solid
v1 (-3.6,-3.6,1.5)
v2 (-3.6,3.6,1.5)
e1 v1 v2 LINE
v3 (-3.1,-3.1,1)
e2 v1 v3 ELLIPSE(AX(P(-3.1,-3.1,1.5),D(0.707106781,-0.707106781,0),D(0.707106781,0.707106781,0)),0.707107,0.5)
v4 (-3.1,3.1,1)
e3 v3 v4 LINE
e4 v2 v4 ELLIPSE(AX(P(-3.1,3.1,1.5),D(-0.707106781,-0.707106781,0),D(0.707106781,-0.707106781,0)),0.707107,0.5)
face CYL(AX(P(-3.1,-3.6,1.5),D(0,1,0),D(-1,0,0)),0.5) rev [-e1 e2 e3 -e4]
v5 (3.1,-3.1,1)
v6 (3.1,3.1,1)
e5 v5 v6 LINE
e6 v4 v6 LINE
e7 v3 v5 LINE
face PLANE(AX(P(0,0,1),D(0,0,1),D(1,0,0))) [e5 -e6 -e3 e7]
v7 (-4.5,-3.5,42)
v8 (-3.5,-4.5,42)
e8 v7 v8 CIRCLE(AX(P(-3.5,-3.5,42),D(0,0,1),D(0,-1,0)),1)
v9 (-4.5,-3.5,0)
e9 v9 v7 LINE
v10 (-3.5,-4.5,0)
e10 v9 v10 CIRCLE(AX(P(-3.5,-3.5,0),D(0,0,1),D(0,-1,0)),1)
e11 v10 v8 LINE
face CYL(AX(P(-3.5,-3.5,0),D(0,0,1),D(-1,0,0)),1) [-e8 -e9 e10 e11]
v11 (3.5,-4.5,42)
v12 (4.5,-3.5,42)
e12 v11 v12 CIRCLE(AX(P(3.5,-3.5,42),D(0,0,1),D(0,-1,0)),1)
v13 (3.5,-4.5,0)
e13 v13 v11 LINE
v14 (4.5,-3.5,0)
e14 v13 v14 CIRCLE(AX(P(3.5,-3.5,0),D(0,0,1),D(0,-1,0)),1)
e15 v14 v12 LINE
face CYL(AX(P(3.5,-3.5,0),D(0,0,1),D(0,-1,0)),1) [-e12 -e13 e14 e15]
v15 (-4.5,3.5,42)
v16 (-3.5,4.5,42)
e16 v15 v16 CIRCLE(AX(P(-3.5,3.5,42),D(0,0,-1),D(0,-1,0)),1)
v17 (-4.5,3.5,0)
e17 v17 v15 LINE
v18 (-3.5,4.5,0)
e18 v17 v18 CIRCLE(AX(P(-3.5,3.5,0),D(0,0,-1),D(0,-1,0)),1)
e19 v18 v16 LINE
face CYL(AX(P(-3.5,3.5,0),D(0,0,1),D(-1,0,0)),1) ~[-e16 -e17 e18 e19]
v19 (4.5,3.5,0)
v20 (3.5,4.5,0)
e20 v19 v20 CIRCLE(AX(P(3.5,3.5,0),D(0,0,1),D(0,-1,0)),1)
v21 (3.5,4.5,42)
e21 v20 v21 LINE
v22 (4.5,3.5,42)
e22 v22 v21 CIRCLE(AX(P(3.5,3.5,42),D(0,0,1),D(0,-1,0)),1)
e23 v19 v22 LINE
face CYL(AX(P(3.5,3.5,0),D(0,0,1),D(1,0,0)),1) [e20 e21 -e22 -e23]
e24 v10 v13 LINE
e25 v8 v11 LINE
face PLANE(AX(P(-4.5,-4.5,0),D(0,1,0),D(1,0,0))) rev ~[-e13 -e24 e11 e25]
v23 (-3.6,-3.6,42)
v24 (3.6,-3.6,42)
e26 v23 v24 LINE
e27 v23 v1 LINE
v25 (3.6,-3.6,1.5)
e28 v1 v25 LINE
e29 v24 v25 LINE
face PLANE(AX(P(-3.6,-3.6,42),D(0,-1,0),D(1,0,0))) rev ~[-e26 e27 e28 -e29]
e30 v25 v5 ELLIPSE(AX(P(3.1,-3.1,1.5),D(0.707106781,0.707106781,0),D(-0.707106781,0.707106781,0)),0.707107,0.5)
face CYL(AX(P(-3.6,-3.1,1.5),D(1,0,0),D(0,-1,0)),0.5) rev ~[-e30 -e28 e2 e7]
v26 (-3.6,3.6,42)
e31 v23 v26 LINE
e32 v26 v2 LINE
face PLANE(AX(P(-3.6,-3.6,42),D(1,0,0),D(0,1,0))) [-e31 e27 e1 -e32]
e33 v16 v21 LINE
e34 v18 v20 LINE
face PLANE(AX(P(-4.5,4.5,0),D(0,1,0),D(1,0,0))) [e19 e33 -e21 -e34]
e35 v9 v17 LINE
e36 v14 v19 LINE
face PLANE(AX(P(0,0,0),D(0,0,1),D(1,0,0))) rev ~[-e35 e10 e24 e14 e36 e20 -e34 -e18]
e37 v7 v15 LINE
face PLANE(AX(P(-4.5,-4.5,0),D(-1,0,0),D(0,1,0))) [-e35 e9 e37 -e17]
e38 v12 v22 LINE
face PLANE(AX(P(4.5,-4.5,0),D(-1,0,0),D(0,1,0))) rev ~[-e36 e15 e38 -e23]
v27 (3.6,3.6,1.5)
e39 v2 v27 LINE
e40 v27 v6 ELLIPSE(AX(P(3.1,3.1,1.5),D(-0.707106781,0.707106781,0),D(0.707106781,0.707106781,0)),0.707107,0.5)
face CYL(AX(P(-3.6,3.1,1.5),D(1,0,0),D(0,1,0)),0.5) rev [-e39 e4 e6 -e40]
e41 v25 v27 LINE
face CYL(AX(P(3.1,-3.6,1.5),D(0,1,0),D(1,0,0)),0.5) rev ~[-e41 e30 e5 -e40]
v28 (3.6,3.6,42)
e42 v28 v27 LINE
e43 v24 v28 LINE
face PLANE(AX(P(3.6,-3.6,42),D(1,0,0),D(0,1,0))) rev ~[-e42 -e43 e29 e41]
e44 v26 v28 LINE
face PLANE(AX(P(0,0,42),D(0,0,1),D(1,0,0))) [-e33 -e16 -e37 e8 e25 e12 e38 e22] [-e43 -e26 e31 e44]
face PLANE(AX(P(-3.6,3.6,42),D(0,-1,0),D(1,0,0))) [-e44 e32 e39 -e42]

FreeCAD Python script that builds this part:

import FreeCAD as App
import Part
import Sketcher

V = App.Vector


def edges_at(feature, points):
    """Names of the edges that pass closest to the given points."""
    edges = feature.Shape.Edges
    near = lambda p: min(range(len(edges)), key=lambda i: edges[i].distToShape(Part.Vertex(*p))[0])
    return sorted({f"Edge{near(p) + 1}" for p in points})

doc = App.newDocument("Part")
body = doc.addObject("PartDesign::Body", "Body")

sketch1 = doc.addObject("Sketcher::SketchObject", "Sketch")
body.addObject(sketch1)
sketch1.AttachmentSupport = (doc.XY_Plane, [""])
sketch1.MapMode = "FlatFace"
sketch1.addGeometry([
    Part.LineSegment(V(-4, 4, 0), V(-4, -4, 0)),
    Part.LineSegment(V(-4, -4, 0), V(4, -4, 0)),
    Part.LineSegment(V(4, -4, 0), V(4, 4, 0)),
    Part.LineSegment(V(4, 4, 0), V(-4, 4, 0)),
], False)
sketch1.addConstraint([
    Sketcher.Constraint("Coincident", 0, 2, 1, 1),
    Sketcher.Constraint("Coincident", 1, 2, 2, 1),
    Sketcher.Constraint("Coincident", 2, 2, 3, 1),
    Sketcher.Constraint("Coincident", 3, 2, 0, 1),
    Sketcher.Constraint("Vertical", 0),
    Sketcher.Constraint("Horizontal", 1),
    Sketcher.Constraint("Vertical", 2),
    Sketcher.Constraint("Horizontal", 3),
    Sketcher.Constraint("Symmetric", 0, 2, 2, 2, -1, 1),
    Sketcher.Constraint("Equal", 3, 0),
    Sketcher.Constraint("DistanceX", 1, 1, 1, 2, 9.0),
])
pad1 = doc.addObject("PartDesign::Pad", "Pad")
body.addObject(pad1)
pad1.Profile = sketch1
pad1.Length = 42
doc.recompute()

fillet = doc.addObject("PartDesign::Fillet", "Fillet")
body.addObject(fillet)
fillet.Base = (pad1, edges_at(pad1, [
    (-4.5, -4.5, 21),
    (4.5, -4.5, 21),
    (4.5, 4.5, 21),
    (-4.5, 4.5, 21),
]))
fillet.Radius = 1

sketch2 = doc.addObject("Sketcher::SketchObject", "Sketch001")
body.addObject(sketch2)
sketch2.AttachmentSupport = (doc.XY_Plane, [""])
sketch2.MapMode = "FlatFace"
sketch2.AttachmentOffset = App.Placement(V(0, 0, 42), App.Rotation())
sketch2.addGeometry([
    Part.LineSegment(V(-4, 4, 0), V(-4, -4, 0)),
    Part.LineSegment(V(-4, -4, 0), V(4, -4, 0)),
    Part.LineSegment(V(4, -4, 0), V(4, 4, 0)),
    Part.LineSegment(V(4, 4, 0), V(-4, 4, 0)),
], False)
sketch2.addConstraint([
    Sketcher.Constraint("Coincident", 0, 2, 1, 1),
    Sketcher.Constraint("Coincident", 1, 2, 2, 1),
    Sketcher.Constraint("Coincident", 2, 2, 3, 1),
    Sketcher.Constraint("Coincident", 3, 2, 0, 1),
    Sketcher.Constraint("Vertical", 0),
    Sketcher.Constraint("Horizontal", 1),
    Sketcher.Constraint("Vertical", 2),
    Sketcher.Constraint("Horizontal", 3),
    Sketcher.Constraint("Symmetric", 0, 2, 2, 2, -1, 1),
    Sketcher.Constraint("Equal", 3, 0),
    Sketcher.Constraint("DistanceX", 1, 1, 1, 2, 7.2),
])
pocket1 = doc.addObject("PartDesign::Pocket", "Pocket")
body.addObject(pocket1)
pocket1.Profile = sketch2
pocket1.Length = 41
doc.recompute()

fillet2 = doc.addObject("PartDesign::Fillet", "Fillet001")
body.addObject(fillet2)
fillet2.Base = (pocket1, edges_at(pocket1, [
    (0, 3.6, 1),
    (-3.6, 0, 1),
    (3.6, 0, 1),
    (0, -3.6, 1),
]))
fillet2.Radius = 0.5

doc.recompute()
